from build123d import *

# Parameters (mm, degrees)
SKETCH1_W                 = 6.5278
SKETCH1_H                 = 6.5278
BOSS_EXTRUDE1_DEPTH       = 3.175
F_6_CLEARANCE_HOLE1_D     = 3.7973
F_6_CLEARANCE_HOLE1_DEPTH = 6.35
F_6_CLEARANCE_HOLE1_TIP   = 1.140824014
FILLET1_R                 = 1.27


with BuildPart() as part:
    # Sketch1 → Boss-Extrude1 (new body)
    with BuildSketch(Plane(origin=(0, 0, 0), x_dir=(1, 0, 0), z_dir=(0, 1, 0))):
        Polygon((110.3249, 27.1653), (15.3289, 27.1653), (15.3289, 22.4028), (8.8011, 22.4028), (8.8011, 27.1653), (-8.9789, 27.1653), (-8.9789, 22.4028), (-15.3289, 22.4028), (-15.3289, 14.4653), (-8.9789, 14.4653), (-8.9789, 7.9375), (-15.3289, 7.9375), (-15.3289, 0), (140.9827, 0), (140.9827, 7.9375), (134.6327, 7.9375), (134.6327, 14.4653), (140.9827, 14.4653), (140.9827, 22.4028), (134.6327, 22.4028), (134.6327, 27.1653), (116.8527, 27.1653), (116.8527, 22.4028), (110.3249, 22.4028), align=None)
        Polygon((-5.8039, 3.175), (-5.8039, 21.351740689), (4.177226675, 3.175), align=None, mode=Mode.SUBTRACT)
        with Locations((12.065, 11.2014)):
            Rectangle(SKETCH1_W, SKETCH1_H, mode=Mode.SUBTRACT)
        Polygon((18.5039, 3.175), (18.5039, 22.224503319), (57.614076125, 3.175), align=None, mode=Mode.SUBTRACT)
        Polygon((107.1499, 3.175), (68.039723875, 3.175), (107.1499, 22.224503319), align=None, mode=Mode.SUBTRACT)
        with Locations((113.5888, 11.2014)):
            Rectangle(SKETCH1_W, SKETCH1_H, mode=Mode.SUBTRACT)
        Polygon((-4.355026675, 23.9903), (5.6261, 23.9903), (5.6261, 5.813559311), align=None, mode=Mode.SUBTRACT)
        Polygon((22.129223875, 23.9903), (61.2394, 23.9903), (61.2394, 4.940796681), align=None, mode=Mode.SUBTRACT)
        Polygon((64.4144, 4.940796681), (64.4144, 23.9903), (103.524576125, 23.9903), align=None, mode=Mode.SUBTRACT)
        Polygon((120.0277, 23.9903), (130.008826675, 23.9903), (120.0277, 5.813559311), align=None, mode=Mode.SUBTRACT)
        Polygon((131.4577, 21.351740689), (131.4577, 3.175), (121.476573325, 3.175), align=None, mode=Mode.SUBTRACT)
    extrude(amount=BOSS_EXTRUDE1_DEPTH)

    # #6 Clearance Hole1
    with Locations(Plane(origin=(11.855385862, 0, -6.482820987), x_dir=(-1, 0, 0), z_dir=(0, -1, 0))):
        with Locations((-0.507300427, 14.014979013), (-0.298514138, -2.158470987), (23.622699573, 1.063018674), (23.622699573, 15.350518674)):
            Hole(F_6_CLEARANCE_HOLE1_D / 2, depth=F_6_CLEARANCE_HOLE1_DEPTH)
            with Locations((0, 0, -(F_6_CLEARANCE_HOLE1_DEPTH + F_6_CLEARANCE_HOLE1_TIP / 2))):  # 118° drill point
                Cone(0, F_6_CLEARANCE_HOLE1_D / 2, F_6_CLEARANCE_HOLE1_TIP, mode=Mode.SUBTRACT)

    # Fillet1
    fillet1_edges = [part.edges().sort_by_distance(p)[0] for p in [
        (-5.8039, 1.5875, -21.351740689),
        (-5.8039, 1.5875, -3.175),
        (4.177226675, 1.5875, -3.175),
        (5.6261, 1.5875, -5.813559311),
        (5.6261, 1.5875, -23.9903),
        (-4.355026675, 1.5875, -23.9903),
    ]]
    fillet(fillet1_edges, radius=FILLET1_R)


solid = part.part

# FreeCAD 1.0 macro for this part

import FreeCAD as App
import Part
import Sketcher

V = App.Vector
Q = App.Units.Quantity


def edges_at(feature, points):
    """Names of the edges that pass closest to the given points."""
    edges = feature.Shape.Edges
    near = lambda p: min(range(len(edges)), key=lambda i: edges[i].distToShape(Part.Vertex(*p))[0])
    return sorted({f"Edge{near(p) + 1}" for p in points})


def add_polygon(sketch, points):
    """Adds a closed chain of lines whose ends are joined by coincident constraints."""
    first, n = sketch.GeometryCount, len(points)
    for a, b in zip(points, points[1:] + points[:1]):
        sketch.addGeometry(Part.LineSegment(App.Vector(*a, 0), App.Vector(*b, 0)), False)
    for i in range(n):
        sketch.addConstraint(Sketcher.Constraint("Coincident", first + i, 2, first + (i + 1) % n, 1))

doc = App.newDocument("Part")
params = doc.addObject("Spreadsheet::Sheet", "Params")
for row, (alias, value) in enumerate([
    ("sketch1_width", "0.7 in"),
    ("sketch1_width2", "3.74 in"),
    ("sketch1_width3", "0.25 in"),
    ("sketch1_width4", "0.257 in"),
    ("sketch1_height", "0.1875 in"),
    ("pad1_length", "0.125 in"),
    ("hole_diameter", "0.1495 in"),
    ("hole_depth", "0.25 in"),
    ("fillet_radius", "0.05 in"),
], start=1):
    params.set(f"A{row}", alias)
    params.set(f"B{row}", "=" + value)
    params.setAlias(f"B{row}", alias)

body = doc.addObject("PartDesign::Body", "Body")

sketch1 = body.newObject("Sketcher::SketchObject", "Sketch")
sketch1.AttachmentSupport = (doc.getObject("XZ_Plane"), [""])
sketch1.MapMode = "FlatFace"
add_polygon(sketch1, [(110.3249, -27.1653), (15.3289, -27.1653), (15.3289, -22.4028), (8.8011, -22.4028), (8.8011, -27.1653), (-8.9789, -27.1653), (-8.9789, -22.4028), (-15.3289, -22.4028), (-15.3289, -14.4653), (-8.9789, -14.4653), (-8.9789, -7.9375), (-15.3289, -7.9375), (-15.3289, 0), (140.9827, 0), (140.9827, -7.9375), (134.6327, -7.9375), (134.6327, -14.4653), (140.9827, -14.4653), (140.9827, -22.4028), (134.6327, -22.4028), (134.6327, -27.1653), (116.8527, -27.1653), (116.8527, -22.4028), (110.3249, -22.4028)])
add_polygon(sketch1, [(4.177227, -3.175), (-5.8039, -3.175), (-5.8039, -21.351741)])
add_polygon(sketch1, [(15.3289, -7.9375), (8.8011, -7.9375), (8.8011, -14.4653), (15.3289, -14.4653)])
add_polygon(sketch1, [(57.614076, -3.175), (18.5039, -3.175), (18.5039, -22.224503)])
add_polygon(sketch1, [(107.1499, -22.224503), (107.1499, -3.175), (68.039724, -3.175)])
add_polygon(sketch1, [(116.8527, -7.9375), (110.3249, -7.9375), (110.3249, -14.4653), (116.8527, -14.4653)])
add_polygon(sketch1, [(121.476573, -3.175), (131.4577, -21.351741), (131.4577, -3.175)])
add_polygon(sketch1, [(5.6261, -5.813559), (-4.355027, -23.9903), (5.6261, -23.9903)])
add_polygon(sketch1, [(61.2394, -4.940797), (22.129224, -23.9903), (61.2394, -23.9903)])
add_polygon(sketch1, [(103.524576, -23.9903), (64.4144, -4.940797), (64.4144, -23.9903)])
add_polygon(sketch1, [(120.0277, -5.813559), (120.0277, -23.9903), (130.008827, -23.9903)])
sketch1.addConstraint(Sketcher.Constraint("Horizontal", 0))
sketch1.addConstraint(Sketcher.Constraint("Vertical", 1))
sketch1.addConstraint(Sketcher.Constraint("Horizontal", 2))
sketch1.addConstraint(Sketcher.Constraint("Vertical", 3))
sketch1.addConstraint(Sketcher.Constraint("Horizontal", 4))
sketch1.addConstraint(Sketcher.Constraint("Vertical", 5))
sketch1.addConstraint(Sketcher.Constraint("Horizontal", 6))
sketch1.addConstraint(Sketcher.Constraint("Vertical", 7))
sketch1.addConstraint(Sketcher.Constraint("Horizontal", 8))
sketch1.addConstraint(Sketcher.Constraint("Vertical", 9))
sketch1.addConstraint(Sketcher.Constraint("Horizontal", 10))
sketch1.addConstraint(Sketcher.Constraint("Vertical", 11))
sketch1.addConstraint(Sketcher.Constraint("Horizontal", 12))
sketch1.addConstraint(Sketcher.Constraint("Vertical", 13))
sketch1.addConstraint(Sketcher.Constraint("Horizontal", 14))
sketch1.addConstraint(Sketcher.Constraint("Vertical", 15))
sketch1.addConstraint(Sketcher.Constraint("Horizontal", 16))
sketch1.addConstraint(Sketcher.Constraint("Vertical", 17))
sketch1.addConstraint(Sketcher.Constraint("Horizontal", 18))
sketch1.addConstraint(Sketcher.Constraint("Vertical", 19))
sketch1.addConstraint(Sketcher.Constraint("Horizontal", 20))
sketch1.addConstraint(Sketcher.Constraint("Vertical", 21))
sketch1.addConstraint(Sketcher.Constraint("Horizontal", 22))
sketch1.addConstraint(Sketcher.Constraint("Vertical", 23))
sketch1.addConstraint(Sketcher.Constraint("Horizontal", 24))
sketch1.addConstraint(Sketcher.Constraint("Vertical", 25))
sketch1.addConstraint(Sketcher.Constraint("Horizontal", 27))
sketch1.addConstraint(Sketcher.Constraint("Vertical", 28))
sketch1.addConstraint(Sketcher.Constraint("Horizontal", 29))
sketch1.addConstraint(Sketcher.Constraint("Vertical", 30))
sketch1.addConstraint(Sketcher.Constraint("Horizontal", 31))
sketch1.addConstraint(Sketcher.Constraint("Vertical", 32))
sketch1.addConstraint(Sketcher.Constraint("Vertical", 34))
sketch1.addConstraint(Sketcher.Constraint("Horizontal", 35))
sketch1.addConstraint(Sketcher.Constraint("Horizontal", 37))
sketch1.addConstraint(Sketcher.Constraint("Vertical", 38))
sketch1.addConstraint(Sketcher.Constraint("Horizontal", 39))
sketch1.addConstraint(Sketcher.Constraint("Vertical", 40))
sketch1.addConstraint(Sketcher.Constraint("Vertical", 42))
sketch1.addConstraint(Sketcher.Constraint("Horizontal", 43))
sketch1.addConstraint(Sketcher.Constraint("Horizontal", 45))
sketch1.addConstraint(Sketcher.Constraint("Vertical", 46))
sketch1.addConstraint(Sketcher.Constraint("Horizontal", 48))
sketch1.addConstraint(Sketcher.Constraint("Vertical", 49))
sketch1.addConstraint(Sketcher.Constraint("Vertical", 51))
sketch1.addConstraint(Sketcher.Constraint("Horizontal", 52))
sketch1.addConstraint(Sketcher.Constraint("Vertical", 53))
sketch1.addConstraint(Sketcher.Constraint("Horizontal", 54))
sketch1.addConstraint(Sketcher.Constraint("Symmetric", 1, 2, 6, 2, -2))
sketch1.addConstraint(Sketcher.Constraint("Symmetric", 7, 2, 29, 2, -2))
sketch1.addConstraint(Sketcher.Constraint("Symmetric", 10, 2, 30, 2, -2))
sketch1.addConstraint(Sketcher.Constraint("PointOnObject", 11, 2, -1))
sketch1.addConstraint(Sketcher.Constraint("Parallel", 26, 44))
sketch1.addConstraint(Sketcher.Constraint("Parallel", 33, 47))
sketch1.addConstraint(Sketcher.Constraint("Parallel", 36, 50))
sketch1.addConstraint(Sketcher.Constraint("Parallel", 41, 55))
sketch1.addConstraint(Sketcher.Constraint("Horizontal", 0, 2, 3, 2))
sketch1.addConstraint(Sketcher.Constraint("Horizontal", 10, 2, 13, 2))
sketch1.addConstraint(Sketcher.Constraint("Horizontal", 8, 2, 15, 2))
sketch1.addConstraint(Sketcher.Constraint("Horizontal", 6, 2, 17, 2))
sketch1.addConstraint(Sketcher.Constraint("Horizontal", 4, 2, 19, 2))
sketch1.addConstraint(Sketcher.Constraint("Horizontal", 18, 2, 21, 2))
sketch1.addConstraint(Sketcher.Constraint("Horizontal", 26, 2, 31, 2))
sketch1.addConstraint(Sketcher.Constraint("Horizontal", 33, 2, 34, 2))
sketch1.addConstraint(Sketcher.Constraint("Horizontal", 32, 2, 36, 2))
sketch1.addConstraint(Sketcher.Constraint("Horizontal", 30, 2, 37, 2))
sketch1.addConstraint(Sketcher.Constraint("Horizontal", 29, 2, 38, 2))
sketch1.addConstraint(Sketcher.Constraint("Horizontal", 25, 2, 41, 2))
sketch1.addConstraint(Sketcher.Constraint("Horizontal", 35, 2, 42, 2))
sketch1.addConstraint(Sketcher.Constraint("Horizontal", 45, 2, 47, 2))
sketch1.addConstraint(Sketcher.Constraint("Horizontal", 49, 2, 50, 2))
sketch1.addConstraint(Sketcher.Constraint("Horizontal", 48, 2, 51, 2))
sketch1.addConstraint(Sketcher.Constraint("Horizontal", 52, 2, 53, 2))
sketch1.addConstraint(Sketcher.Constraint("Horizontal", 46, 2, 55, 2))
sketch1.addConstraint(Sketcher.Constraint("Vertical", 5, 2, 8, 2))
sketch1.addConstraint(Sketcher.Constraint("Vertical", 13, 2, 16, 2))
sketch1.addConstraint(Sketcher.Constraint("Vertical", 15, 2, 18, 2))
sketch1.addConstraint(Sketcher.Constraint("Vertical", 3, 2, 27, 2))
sketch1.addConstraint(Sketcher.Constraint("Vertical", 23, 2, 37, 2))
sketch1.addConstraint(Sketcher.Constraint("Vertical", 21, 2, 39, 2))
sketch1.addConstraint(Sketcher.Constraint("Equal", 10, 14))
sketch1.addConstraint(Sketcher.Constraint("Equal", 4, 20))
sketch1.addConstraint(Sketcher.Constraint("Equal", 2, 22))
sketch1.addConstraint(Sketcher.Constraint("Equal", 31, 35))
sketch1.addConstraint(Sketcher.Constraint("Equal", 24, 43))
sketch1.addConstraint(Sketcher.Constraint("Equal", 43, 45))
sketch1.addConstraint(Sketcher.Constraint("Equal", 35, 48))
sketch1.addConstraint(Sketcher.Constraint("Equal", 39, 9))
sketch1.addConstraint(Sketcher.Constraint("Equal", 7, 11))
sketch1.addConstraint(Sketcher.Constraint("DistanceX", 4, 2, 4, 1, Q("0.7 in")))
sketch1.addConstraint(Sketcher.Constraint("DistanceX", 0, 2, 0, 1, Q("3.74 in")))
sketch1.addConstraint(Sketcher.Constraint("DistanceX", 6, 2, 6, 1, Q("0.25 in")))
sketch1.addConstraint(Sketcher.Constraint("DistanceY", 4, 2, 7, 2, Q("0.5 in")))
sketch1.addConstraint(Sketcher.Constraint("DistanceX", 2, 2, 2, 1, Q("0.257 in")))
sketch1.addConstraint(Sketcher.Constraint("DistanceY", 1, 1, 1, 2, Q("0.1875 in")))
sketch1.addConstraint(Sketcher.Constraint("DistanceX", 24, 2, 46, 2, Q("0.45 in")))
sketch1.addConstraint(Sketcher.Constraint("DistanceX", 55, 2, 42, 2, Q("0.45 in")))
sketch1.addConstraint(Sketcher.Constraint("DistanceY", 24, 2, -1, 1, Q("0.125 in")))
sketch1.addConstraint(Sketcher.Constraint("DistanceX", -1, 1, 48, 2, Q("2.411 in")))
sketch1.addConstraint(Sketcher.Constraint("DistanceX", -1, 1, 50, 2, Q("2.536 in")))
sketch1.addConstraint(Sketcher.Constraint("DistanceX", 9, 2, 24, 2, Q("0.125 in")))
sketch1.addConstraint(Sketcher.Constraint("DistanceX", 30, 2, 31, 2, Q("0.125 in")))
sketch1.addConstraint(Sketcher.Constraint("DistanceX", 34, 2, 22, 2, Q("0.125 in")))
sketch1.addConstraint(Sketcher.Constraint("DistanceX", 41, 2, 18, 2, Q("0.125 in")))
sketch1.addConstraint(Sketcher.Constraint("DistanceY", 44, 2, 5, 2, Q("0.0625 in")))
sketch1.addConstraint(Sketcher.Constraint("DistanceY", 25, 2, 25, 1, 18.176741))
sketch1.addConstraint(Sketcher.Constraint("DistanceX", 24, 2, 24, 1, 9.981127))
sketch1.addConstraint(Sketcher.Constraint("DistanceX", 31, 2, 31, 1, 39.110176))
sketch1.addConstraint(Sketcher.Constraint("DistanceY", 32, 2, 32, 1, 19.049503))
sketch1.setExpression("Constraints[145]", "Params.sketch1_width")
sketch1.setExpression("Constraints[146]", "Params.sketch1_width2")
sketch1.setExpression("Constraints[147]", "Params.sketch1_width3")
sketch1.setExpression("Constraints[149]", "Params.sketch1_width4")
sketch1.setExpression("Constraints[150]", "Params.sketch1_height")
pad1 = body.newObject("PartDesign::Pad", "Pad")
pad1.Profile = sketch1
pad1.setExpression("Length", "Params.pad1_length")
pad1.Reversed = True

sketch2 = body.newObject("Sketcher::SketchObject", "Sketch001")
sketch2.AttachmentSupport = (doc.getObject("XZ_Plane"), [""])
sketch2.MapMode = "FlatFace"
sketch2.addGeometry(Part.Circle(V(12.362686, -20.4978, 0), V(0, 0, 1), 1.89865), False)
sketch2.addGeometry(Part.Circle(V(12.1539, -4.32435, 0), V(0, 0, 1), 1.89865), False)
sketch2.addGeometry(Part.Circle(V(-11.767314, -7.54584, 0), V(0, 0, 1), 1.89865), False)
sketch2.addGeometry(Part.Circle(V(-11.767314, -21.83334, 0), V(0, 0, 1), 1.89865), False)
sketch2.addConstraint(Sketcher.Constraint("Equal", 0, 1))
sketch2.addConstraint(Sketcher.Constraint("Equal", 1, 2))
sketch2.addConstraint(Sketcher.Constraint("Equal", 2, 3))
sketch2.addConstraint(Sketcher.Constraint("Vertical", 2, 3, 3, 3))
sketch2.addConstraint(Sketcher.Constraint("Diameter", 0, Q("0.1495 in")))
sketch2.addConstraint(Sketcher.Constraint("DistanceX", 2, 3, 0, 3, Q("0.95 in")))
sketch2.addConstraint(Sketcher.Constraint("DistanceY", 0, 3, -1, 1, Q("0.807 in")))
sketch2.addConstraint(Sketcher.Constraint("DistanceY", 3, 3, 2, 3, Q("0.5625 in")))
sketch2.addConstraint(Sketcher.Constraint("DistanceX", -1, 1, 1, 3, Q("0.4785 in")))
sketch2.addConstraint(Sketcher.Constraint("DistanceY", 1, 3, -1, 1, 4.32435))
sketch2.addConstraint(Sketcher.Constraint("DistanceY", 2, 3, -1, 1, 7.54584))
sketch2.addConstraint(Sketcher.Constraint("DistanceX", -1, 1, 0, 3, 12.362686))
doc.recompute()
hole = body.newObject("PartDesign::Hole", "Hole")
hole.Profile = sketch2
hole.ThreadType = "None"
hole.setExpression("Diameter", "Params.hole_diameter")
hole.DepthType = "Dimension"
hole.setExpression("Depth", "Params.hole_depth")
hole.DrillPoint = "Angled"
hole.DrillPointAngle = 118
doc.recompute()

fillet = body.newObject("PartDesign::Fillet", "Fillet")
fillet.Base = (hole, edges_at(hole, [
    (-5.804, 1.587, -21.352),
    (-5.804, 1.587, -3.175),
    (4.177, 1.587, -3.175),
    (5.626, 1.587, -5.814),
    (5.626, 1.587, -23.99),
    (-4.355, 1.587, -23.99),
]))
fillet.setExpression("Radius", "Params.fillet_radius")

doc.recompute()
